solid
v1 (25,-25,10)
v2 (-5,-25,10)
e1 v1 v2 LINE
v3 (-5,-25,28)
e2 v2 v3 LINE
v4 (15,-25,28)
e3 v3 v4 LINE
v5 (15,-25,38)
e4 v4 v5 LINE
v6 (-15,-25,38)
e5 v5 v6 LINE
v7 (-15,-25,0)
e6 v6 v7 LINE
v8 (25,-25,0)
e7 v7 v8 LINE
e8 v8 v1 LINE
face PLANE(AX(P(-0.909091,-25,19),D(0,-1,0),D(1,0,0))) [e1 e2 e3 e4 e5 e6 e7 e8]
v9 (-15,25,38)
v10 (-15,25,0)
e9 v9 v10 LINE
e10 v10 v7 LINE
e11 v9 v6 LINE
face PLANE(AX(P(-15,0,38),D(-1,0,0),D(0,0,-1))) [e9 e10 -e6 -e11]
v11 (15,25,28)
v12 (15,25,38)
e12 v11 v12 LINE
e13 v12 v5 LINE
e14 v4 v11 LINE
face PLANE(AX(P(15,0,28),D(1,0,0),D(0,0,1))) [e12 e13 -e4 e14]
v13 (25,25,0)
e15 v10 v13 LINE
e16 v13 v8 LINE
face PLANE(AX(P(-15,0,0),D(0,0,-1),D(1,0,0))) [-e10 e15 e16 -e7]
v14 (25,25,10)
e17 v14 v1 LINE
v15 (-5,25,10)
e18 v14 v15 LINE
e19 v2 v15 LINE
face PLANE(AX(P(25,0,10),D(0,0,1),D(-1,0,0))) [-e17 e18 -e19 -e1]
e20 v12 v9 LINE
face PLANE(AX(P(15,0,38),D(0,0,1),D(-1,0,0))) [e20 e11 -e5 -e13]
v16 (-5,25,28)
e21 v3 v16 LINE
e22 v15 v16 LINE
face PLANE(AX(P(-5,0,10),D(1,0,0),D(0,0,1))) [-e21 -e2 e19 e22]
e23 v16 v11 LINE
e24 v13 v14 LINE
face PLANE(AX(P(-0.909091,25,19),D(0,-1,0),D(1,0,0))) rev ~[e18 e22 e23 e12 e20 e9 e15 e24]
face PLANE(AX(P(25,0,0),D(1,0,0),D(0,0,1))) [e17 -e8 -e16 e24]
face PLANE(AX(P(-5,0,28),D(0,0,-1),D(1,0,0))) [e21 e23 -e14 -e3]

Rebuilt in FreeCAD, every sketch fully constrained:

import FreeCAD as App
import Part
import Sketcher

doc = App.newDocument("Part")
params = doc.addObject("Spreadsheet::Sheet", "Params")
for row, (alias, value) in enumerate([
    ("sketch1_width", "30 mm"),
    ("sketch1_width2", "40 mm"),
    ("sketch1_height", "10 mm"),
    ("sketch1_height2", "38 mm"),
    ("pad1_length", "50 mm"),
], start=1):
    params.set(f"A{row}", alias)
    params.set(f"B{row}", "=" + value)
    params.setAlias(f"B{row}", alias)

body = doc.addObject("PartDesign::Body", "Body")

# Sketch on XZ plane
sketch1 = doc.addObject("Sketcher::SketchObject", "Sketch")
body.addObject(sketch1)
sketch1.AttachmentSupport = (doc.XZ_Plane, [""])
sketch1.MapMode = "FlatFace"
sketch1.addGeometry(Part.LineSegment(App.Vector(15, 28, 0), App.Vector(15, 38, 0)), False)
sketch1.addGeometry(Part.LineSegment(App.Vector(15, 38, 0), App.Vector(-15, 38, 0)), False)
sketch1.addGeometry(Part.LineSegment(App.Vector(-15, 38, 0), App.Vector(-15, 0, 0)), False)
sketch1.addGeometry(Part.LineSegment(App.Vector(-15, 0, 0), App.Vector(25, 0, 0)), False)
sketch1.addGeometry(Part.LineSegment(App.Vector(25, 0, 0), App.Vector(25, 10, 0)), False)
sketch1.addGeometry(Part.LineSegment(App.Vector(25, 10, 0), App.Vector(-5, 10, 0)), False)
sketch1.addGeometry(Part.LineSegment(App.Vector(-5, 10, 0), App.Vector(-5, 28, 0)), False)
sketch1.addGeometry(Part.LineSegment(App.Vector(-5, 28, 0), App.Vector(15, 28, 0)), False)
sketch1.addConstraint(Sketcher.Constraint("Coincident", 0, 2, 1, 1))
sketch1.addConstraint(Sketcher.Constraint("Coincident", 1, 2, 2, 1))
sketch1.addConstraint(Sketcher.Constraint("Coincident", 2, 2, 3, 1))
sketch1.addConstraint(Sketcher.Constraint("Coincident", 3, 2, 4, 1))
sketch1.addConstraint(Sketcher.Constraint("Coincident", 4, 2, 5, 1))
sketch1.addConstraint(Sketcher.Constraint("Coincident", 5, 2, 6, 1))
sketch1.addConstraint(Sketcher.Constraint("Coincident", 6, 2, 7, 1))
sketch1.addConstraint(Sketcher.Constraint("Coincident", 7, 2, 0, 1))
sketch1.addConstraint(Sketcher.Constraint("Vertical", 0))
sketch1.addConstraint(Sketcher.Constraint("Horizontal", 1))
sketch1.addConstraint(Sketcher.Constraint("Vertical", 2))
sketch1.addConstraint(Sketcher.Constraint("Horizontal", 3))
sketch1.addConstraint(Sketcher.Constraint("Vertical", 4))
sketch1.addConstraint(Sketcher.Constraint("Horizontal", 5))
sketch1.addConstraint(Sketcher.Constraint("Vertical", 6))
sketch1.addConstraint(Sketcher.Constraint("Horizontal", 7))
sketch1.addConstraint(Sketcher.Constraint("PointOnObject", 2, 2, -1))
sketch1.addConstraint(Sketcher.Constraint("Equal", 1, 5))
sketch1.addConstraint(Sketcher.Constraint("Equal", 0, 4))
sketch1.addConstraint(Sketcher.Constraint("DistanceX", 1, 2, 1, 1, 30.0))
sketch1.addConstraint(Sketcher.Constraint("DistanceX", 3, 1, 3, 2, 40.0))
sketch1.addConstraint(Sketcher.Constraint("DistanceY", 0, 1, 0, 2, 10.0))
sketch1.addConstraint(Sketcher.Constraint("DistanceY", 2, 2, 2, 1, 38.0))
sketch1.addConstraint(Sketcher.Constraint("DistanceX", -1, 1, 0, 2, 15.0))
sketch1.setExpression("Constraints[19]", "Params.sketch1_width")
sketch1.setExpression("Constraints[20]", "Params.sketch1_width2")
sketch1.setExpression("Constraints[21]", "Params.sketch1_height")
sketch1.setExpression("Constraints[22]", "Params.sketch1_height2")
pad1 = doc.addObject("PartDesign::Pad", "Pad")
body.addObject(pad1)
pad1.Profile = sketch1
pad1.setExpression("Length", "Params.pad1_length")
pad1.Midplane = True

doc.recompute()
